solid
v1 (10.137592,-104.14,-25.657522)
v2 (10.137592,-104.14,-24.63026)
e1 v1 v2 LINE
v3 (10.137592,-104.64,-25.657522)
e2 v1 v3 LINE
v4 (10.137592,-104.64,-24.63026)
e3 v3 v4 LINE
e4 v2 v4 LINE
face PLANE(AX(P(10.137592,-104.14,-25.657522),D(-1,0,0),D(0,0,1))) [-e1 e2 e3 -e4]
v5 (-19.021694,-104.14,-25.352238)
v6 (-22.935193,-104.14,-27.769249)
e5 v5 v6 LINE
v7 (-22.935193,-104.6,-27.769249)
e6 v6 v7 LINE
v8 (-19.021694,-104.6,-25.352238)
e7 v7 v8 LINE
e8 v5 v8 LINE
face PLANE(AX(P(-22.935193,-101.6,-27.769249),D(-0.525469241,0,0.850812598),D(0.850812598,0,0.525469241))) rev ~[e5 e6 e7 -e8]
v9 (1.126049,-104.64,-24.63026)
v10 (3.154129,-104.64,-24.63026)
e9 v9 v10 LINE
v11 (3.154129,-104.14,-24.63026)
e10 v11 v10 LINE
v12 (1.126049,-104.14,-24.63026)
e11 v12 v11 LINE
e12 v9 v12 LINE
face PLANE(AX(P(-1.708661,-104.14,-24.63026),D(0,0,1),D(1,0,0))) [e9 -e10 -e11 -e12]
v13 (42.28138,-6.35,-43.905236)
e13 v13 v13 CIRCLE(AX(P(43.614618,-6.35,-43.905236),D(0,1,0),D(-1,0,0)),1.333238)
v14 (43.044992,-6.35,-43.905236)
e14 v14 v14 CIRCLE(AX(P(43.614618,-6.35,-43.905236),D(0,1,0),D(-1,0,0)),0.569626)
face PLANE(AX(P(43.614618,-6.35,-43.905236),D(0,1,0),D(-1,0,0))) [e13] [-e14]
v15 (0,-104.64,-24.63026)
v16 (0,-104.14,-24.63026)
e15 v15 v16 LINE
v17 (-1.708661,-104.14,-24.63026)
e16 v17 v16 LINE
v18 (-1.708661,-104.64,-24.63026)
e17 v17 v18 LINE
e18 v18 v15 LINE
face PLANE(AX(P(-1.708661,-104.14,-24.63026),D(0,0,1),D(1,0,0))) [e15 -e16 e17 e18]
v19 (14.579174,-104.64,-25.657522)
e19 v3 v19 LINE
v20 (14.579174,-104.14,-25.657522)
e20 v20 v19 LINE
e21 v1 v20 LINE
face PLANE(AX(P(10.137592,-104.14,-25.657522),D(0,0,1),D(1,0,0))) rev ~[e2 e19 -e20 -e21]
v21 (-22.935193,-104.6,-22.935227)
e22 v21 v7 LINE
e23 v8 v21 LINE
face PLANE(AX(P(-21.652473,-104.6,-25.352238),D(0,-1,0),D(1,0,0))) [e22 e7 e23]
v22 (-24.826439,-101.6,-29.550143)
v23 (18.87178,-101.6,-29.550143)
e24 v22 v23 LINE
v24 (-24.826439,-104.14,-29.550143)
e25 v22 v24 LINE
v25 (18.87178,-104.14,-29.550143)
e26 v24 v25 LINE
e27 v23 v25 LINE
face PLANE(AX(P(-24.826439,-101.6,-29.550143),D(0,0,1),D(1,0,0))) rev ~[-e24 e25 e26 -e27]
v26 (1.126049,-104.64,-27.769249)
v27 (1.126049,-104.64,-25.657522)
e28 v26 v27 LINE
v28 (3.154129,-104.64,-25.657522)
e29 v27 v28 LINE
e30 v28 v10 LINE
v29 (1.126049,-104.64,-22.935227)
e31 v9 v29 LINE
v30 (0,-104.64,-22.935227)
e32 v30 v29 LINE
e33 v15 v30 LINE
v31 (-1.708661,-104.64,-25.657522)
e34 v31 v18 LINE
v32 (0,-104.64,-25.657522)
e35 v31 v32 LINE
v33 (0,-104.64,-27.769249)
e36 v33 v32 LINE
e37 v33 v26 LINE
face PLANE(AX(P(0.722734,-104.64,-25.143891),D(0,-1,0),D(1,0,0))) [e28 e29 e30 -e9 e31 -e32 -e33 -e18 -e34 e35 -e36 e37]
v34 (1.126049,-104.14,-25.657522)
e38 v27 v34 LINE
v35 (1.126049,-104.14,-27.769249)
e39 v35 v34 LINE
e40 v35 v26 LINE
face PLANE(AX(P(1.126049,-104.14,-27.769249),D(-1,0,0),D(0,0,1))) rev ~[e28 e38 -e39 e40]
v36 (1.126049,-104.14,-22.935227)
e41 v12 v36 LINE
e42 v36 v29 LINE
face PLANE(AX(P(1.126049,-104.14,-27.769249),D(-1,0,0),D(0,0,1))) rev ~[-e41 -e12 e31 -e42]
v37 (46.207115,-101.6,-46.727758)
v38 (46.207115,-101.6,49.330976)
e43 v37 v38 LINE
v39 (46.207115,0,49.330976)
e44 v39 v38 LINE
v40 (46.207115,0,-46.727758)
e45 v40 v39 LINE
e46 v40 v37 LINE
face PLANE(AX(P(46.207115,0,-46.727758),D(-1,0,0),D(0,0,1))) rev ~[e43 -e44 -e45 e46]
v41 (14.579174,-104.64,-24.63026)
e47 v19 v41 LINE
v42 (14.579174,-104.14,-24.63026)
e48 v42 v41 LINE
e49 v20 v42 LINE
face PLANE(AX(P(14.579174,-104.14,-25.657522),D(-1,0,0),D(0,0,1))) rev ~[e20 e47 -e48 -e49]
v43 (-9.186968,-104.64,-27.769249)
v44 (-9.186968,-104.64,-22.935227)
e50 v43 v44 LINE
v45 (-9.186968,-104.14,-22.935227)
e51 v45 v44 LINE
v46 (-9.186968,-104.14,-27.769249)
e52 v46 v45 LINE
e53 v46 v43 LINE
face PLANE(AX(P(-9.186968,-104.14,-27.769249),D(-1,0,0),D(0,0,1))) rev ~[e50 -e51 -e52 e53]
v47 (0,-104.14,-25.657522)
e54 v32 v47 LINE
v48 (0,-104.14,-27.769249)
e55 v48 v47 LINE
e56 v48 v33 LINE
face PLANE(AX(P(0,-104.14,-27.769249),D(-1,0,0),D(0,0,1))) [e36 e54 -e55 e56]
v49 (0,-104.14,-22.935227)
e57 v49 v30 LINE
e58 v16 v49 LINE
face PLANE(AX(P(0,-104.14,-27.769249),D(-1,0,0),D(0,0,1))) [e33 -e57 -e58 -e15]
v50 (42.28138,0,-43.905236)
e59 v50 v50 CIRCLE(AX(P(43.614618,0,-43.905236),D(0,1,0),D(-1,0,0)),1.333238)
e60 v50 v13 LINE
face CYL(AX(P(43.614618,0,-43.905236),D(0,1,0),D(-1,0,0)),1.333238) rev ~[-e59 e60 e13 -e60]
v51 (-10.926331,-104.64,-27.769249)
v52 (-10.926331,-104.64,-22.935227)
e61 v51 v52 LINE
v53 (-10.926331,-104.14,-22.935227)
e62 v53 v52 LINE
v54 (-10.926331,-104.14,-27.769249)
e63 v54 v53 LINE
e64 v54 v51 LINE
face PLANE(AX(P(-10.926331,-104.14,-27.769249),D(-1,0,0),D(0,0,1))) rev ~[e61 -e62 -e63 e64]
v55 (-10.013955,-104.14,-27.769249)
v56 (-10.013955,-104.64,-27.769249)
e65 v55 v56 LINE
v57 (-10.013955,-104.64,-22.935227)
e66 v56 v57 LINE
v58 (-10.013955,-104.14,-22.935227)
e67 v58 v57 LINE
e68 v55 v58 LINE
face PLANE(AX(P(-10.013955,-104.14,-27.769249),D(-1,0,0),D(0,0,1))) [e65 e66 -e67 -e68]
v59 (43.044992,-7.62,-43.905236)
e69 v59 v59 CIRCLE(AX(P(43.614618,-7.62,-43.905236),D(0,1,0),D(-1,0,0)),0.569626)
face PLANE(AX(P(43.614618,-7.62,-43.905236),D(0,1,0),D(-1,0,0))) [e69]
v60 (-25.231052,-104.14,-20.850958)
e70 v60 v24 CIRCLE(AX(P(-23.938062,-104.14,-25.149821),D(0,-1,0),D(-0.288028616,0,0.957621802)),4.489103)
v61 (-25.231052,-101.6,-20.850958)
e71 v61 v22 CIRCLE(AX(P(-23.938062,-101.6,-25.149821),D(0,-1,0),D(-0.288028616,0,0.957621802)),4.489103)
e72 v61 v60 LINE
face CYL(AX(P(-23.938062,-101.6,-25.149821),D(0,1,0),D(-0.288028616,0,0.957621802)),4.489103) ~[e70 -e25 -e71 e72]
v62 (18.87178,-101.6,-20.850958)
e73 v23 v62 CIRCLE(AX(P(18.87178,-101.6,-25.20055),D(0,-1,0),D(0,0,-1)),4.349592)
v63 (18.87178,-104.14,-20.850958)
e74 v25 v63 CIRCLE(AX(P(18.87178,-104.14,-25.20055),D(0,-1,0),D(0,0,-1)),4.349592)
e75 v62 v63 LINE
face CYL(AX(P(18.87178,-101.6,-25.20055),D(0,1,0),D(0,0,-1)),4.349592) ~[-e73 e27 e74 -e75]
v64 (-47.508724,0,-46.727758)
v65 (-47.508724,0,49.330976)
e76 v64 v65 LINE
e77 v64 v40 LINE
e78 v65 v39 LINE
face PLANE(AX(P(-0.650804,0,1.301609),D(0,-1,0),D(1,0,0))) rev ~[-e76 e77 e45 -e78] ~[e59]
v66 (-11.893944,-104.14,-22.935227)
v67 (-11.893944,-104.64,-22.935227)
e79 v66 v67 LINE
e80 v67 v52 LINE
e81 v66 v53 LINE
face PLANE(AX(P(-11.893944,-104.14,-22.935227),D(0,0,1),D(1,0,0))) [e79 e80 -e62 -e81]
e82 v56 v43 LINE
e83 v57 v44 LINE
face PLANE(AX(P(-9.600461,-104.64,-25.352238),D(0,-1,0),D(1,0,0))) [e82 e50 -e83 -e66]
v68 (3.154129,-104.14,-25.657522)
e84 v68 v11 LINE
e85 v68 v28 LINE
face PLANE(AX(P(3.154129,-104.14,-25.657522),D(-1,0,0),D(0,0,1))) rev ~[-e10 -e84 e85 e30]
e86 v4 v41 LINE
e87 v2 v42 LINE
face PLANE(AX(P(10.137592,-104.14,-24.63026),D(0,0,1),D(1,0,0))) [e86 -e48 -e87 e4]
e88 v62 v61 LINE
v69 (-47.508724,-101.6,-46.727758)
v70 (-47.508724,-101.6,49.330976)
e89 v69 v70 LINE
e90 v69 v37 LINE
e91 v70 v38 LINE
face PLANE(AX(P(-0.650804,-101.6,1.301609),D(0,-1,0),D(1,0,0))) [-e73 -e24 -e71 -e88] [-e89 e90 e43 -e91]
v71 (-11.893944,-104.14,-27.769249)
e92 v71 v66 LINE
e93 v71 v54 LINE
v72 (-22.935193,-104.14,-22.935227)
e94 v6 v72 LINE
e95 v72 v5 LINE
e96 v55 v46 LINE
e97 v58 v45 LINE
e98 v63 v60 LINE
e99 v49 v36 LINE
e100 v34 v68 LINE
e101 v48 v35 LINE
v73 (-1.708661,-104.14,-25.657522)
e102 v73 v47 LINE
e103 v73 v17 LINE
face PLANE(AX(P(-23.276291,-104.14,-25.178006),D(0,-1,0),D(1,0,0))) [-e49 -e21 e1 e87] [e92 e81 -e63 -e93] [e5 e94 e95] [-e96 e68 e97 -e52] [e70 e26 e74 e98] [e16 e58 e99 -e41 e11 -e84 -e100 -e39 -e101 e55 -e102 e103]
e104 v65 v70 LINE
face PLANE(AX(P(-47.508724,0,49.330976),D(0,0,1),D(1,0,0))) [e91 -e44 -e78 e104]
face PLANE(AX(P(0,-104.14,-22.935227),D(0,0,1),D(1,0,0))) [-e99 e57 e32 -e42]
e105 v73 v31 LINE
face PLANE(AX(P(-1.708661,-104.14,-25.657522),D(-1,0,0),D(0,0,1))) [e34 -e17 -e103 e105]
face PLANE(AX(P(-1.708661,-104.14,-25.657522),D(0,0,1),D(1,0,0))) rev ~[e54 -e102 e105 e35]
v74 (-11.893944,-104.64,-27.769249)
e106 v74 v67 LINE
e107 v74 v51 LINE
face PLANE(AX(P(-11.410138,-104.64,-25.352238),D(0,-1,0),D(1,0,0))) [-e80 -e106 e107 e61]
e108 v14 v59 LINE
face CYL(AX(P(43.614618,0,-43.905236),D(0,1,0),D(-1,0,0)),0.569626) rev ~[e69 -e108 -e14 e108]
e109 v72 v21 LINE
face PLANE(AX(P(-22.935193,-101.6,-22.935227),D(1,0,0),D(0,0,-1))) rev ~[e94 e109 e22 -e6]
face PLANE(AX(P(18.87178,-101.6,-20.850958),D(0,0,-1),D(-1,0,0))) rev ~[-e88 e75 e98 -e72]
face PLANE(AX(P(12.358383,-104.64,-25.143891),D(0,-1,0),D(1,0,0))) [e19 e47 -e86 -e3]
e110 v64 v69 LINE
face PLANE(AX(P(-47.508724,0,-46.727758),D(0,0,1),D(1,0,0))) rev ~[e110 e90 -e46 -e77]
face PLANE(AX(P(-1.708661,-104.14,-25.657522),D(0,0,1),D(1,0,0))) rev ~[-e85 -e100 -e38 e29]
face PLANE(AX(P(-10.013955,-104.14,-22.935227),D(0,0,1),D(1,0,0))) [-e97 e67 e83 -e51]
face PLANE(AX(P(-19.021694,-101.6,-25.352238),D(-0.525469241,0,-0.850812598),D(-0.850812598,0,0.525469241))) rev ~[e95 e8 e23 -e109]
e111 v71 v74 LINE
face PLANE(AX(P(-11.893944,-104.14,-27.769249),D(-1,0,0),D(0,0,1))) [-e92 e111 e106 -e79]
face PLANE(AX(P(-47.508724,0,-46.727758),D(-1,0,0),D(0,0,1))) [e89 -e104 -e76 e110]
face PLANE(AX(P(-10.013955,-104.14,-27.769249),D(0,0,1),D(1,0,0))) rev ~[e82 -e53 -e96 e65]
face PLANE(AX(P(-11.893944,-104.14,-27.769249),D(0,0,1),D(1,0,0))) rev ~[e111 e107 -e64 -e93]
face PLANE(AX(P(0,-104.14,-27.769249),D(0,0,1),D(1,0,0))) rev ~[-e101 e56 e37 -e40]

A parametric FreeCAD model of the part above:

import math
import FreeCAD as App
import Part
import Sketcher
Q = App.Units.Quantity

doc = App.newDocument("Part")
body = doc.addObject("PartDesign::Body", "Body")

sketch1 = body.newObject("Sketcher::SketchObject", "Sketch")
sketch1.AttachmentSupport = (doc.getObject("XZ_Plane"), [""])
sketch1.MapMode = "FlatFace"
sketch1.addGeometry([
    Part.LineSegment(App.Vector(-47.508724, 49.330976, 0), App.Vector(-47.508724, -46.727758, 0)),
    Part.LineSegment(App.Vector(-47.508724, -46.727758, 0), App.Vector(46.207115, -46.727758, 0)),
    Part.LineSegment(App.Vector(46.207115, -46.727758, 0), App.Vector(46.207115, 49.330976, 0)),
    Part.LineSegment(App.Vector(46.207115, 49.330976, 0), App.Vector(-47.508724, 49.330976, 0)),
], False)
sketch1.addConstraint([
    Sketcher.Constraint("Coincident", 0, 2, 1, 1),
    Sketcher.Constraint("Coincident", 1, 2, 2, 1),
    Sketcher.Constraint("Coincident", 2, 2, 3, 1),
    Sketcher.Constraint("Coincident", 3, 2, 0, 1),
    Sketcher.Constraint("Vertical", 0),
    Sketcher.Constraint("Horizontal", 1),
    Sketcher.Constraint("Vertical", 2),
    Sketcher.Constraint("Horizontal", 3),
    Sketcher.Constraint("DistanceX", 1, 1, 1, 2, Q("3.6896 in")),
    Sketcher.Constraint("DistanceY", 0, 2, 0, 1, Q("96.058734 mm")),
    Sketcher.Constraint("DistanceX", 0, 2, -1, 1, Q("47.508724 mm")),
    Sketcher.Constraint("DistanceY", 0, 2, -1, 1, Q("46.727758 mm")),
])
pad1 = body.newObject("PartDesign::Pad", "Pad")
pad1.Profile = sketch1
pad1.Length = Q("4 in")

sketch2 = body.newObject("Sketcher::SketchObject", "Sketch001")
sketch2.AttachmentSupport = (doc.getObject("XZ_Plane"), [""])
sketch2.MapMode = "FlatFace"
sketch2.AttachmentOffset = App.Placement(App.Vector(0, 0, 4 * 25.4), App.Rotation())
sketch2.addGeometry([
    Part.ArcOfCircle(Part.Circle(App.Vector(-23.938062, -25.149821, 0), App.Vector(0, 0, 1), 4.489103), math.radians(106.739969), math.radians(258.586031)),
    Part.LineSegment(App.Vector(-24.826439, -29.550143, 0), App.Vector(18.87178, -29.550143, 0)),
    Part.ArcOfCircle(Part.Circle(App.Vector(18.87178, -25.20055, 0), App.Vector(0, 0, 1), 4.349592), math.radians(-90), math.radians(90)),
    Part.LineSegment(App.Vector(18.87178, -20.850958, 0), App.Vector(-25.231052, -20.850958, 0)),
], False)
sketch2.addConstraint([
    Sketcher.Constraint("Coincident", 0, 2, 1, 1),
    Sketcher.Constraint("Tangent", 1, 2, 2, 1),
    Sketcher.Constraint("Tangent", 2, 2, 3, 1),
    Sketcher.Constraint("Coincident", 3, 2, 0, 1),
    Sketcher.Constraint("Horizontal", 1),
    Sketcher.Constraint("Horizontal", 3),
    Sketcher.Constraint("Radius", 0, Q("4.489103 mm")),
    Sketcher.Constraint("Radius", 2, Q("4.349592 mm")),
    Sketcher.Constraint("DistanceX", 1, 1, 1, 2, Q("43.69822 mm")),
    Sketcher.Constraint("DistanceX", 3, 2, 3, 1, Q("44.102833 mm")),
    Sketcher.Constraint("DistanceY", 0, 3, -1, 1, Q("25.149821 mm")),
    Sketcher.Constraint("DistanceX", -1, 1, 2, 3, Q("18.87178 mm")),
])
pad2 = body.newObject("PartDesign::Pad", "Pad001")
pad2.Profile = sketch2
pad2.Length = Q("0.1 in")

sketch3 = body.newObject("Sketcher::SketchObject", "Sketch002")
sketch3.AttachmentSupport = (doc.getObject("XZ_Plane"), [""])
sketch3.MapMode = "FlatFace"
sketch3.AttachmentOffset = App.Placement(App.Vector(0, 0, 4 * 25.4), App.Rotation())
sketch3.addGeometry([
    Part.LineSegment(App.Vector(-19.021694, -25.352238, 0), App.Vector(-22.935193, -22.935227, 0)),
    Part.LineSegment(App.Vector(-22.935193, -22.935227, 0), App.Vector(-22.935193, -27.769249, 0)),
    Part.LineSegment(App.Vector(-22.935193, -27.769249, 0), App.Vector(-19.021694, -25.352238, 0)),
], False)
sketch3.addConstraint([
    Sketcher.Constraint("Coincident", 0, 2, 1, 1),
    Sketcher.Constraint("Coincident", 1, 2, 2, 1),
    Sketcher.Constraint("Coincident", 2, 2, 0, 1),
    Sketcher.Constraint("Vertical", 1),
    Sketcher.Constraint("Equal", 0, 2),
    Sketcher.Constraint("DistanceX", 0, 2, 2, 2, Q("3.913499 mm")),
    Sketcher.Constraint("Distance", 0, Q("4.59972 mm")),
    Sketcher.Constraint("DistanceY", 1, 2, -1, 1, Q("27.769249 mm")),
    Sketcher.Constraint("DistanceX", 0, 2, -1, 1, Q("22.935193 mm")),
])
pad3 = body.newObject("PartDesign::Pad", "Pad002")
pad3.Profile = sketch3
pad3.Length = 3

sketch4 = body.newObject("Sketcher::SketchObject", "Sketch003")
sketch4.AttachmentSupport = (doc.getObject("XZ_Plane"), [""])
sketch4.MapMode = "FlatFace"
sketch4.AttachmentOffset = App.Placement(App.Vector(0, 0, 4.1 * 25.4), App.Rotation())
sketch4.addGeometry([
    Part.LineSegment(App.Vector(-11.893944, -22.935227, 0), App.Vector(-11.893944, -27.769249, 0)),
    Part.LineSegment(App.Vector(-11.893944, -27.769249, 0), App.Vector(-10.926331, -27.769249, 0)),
    Part.LineSegment(App.Vector(-10.926331, -27.769249, 0), App.Vector(-10.926331, -22.935227, 0)),
    Part.LineSegment(App.Vector(-10.926331, -22.935227, 0), App.Vector(-11.893944, -22.935227, 0)),
    Part.LineSegment(App.Vector(-10.013955, -22.935227, 0), App.Vector(-10.013955, -27.769249, 0)),
    Part.LineSegment(App.Vector(-10.013955, -27.769249, 0), App.Vector(-9.186968, -27.769249, 0)),
    Part.LineSegment(App.Vector(-9.186968, -27.769249, 0), App.Vector(-9.186968, -22.935227, 0)),
    Part.LineSegment(App.Vector(-9.186968, -22.935227, 0), App.Vector(-10.013955, -22.935227, 0)),
], False)
sketch4.addConstraint([
    Sketcher.Constraint("Coincident", 0, 2, 1, 1),
    Sketcher.Constraint("Coincident", 1, 2, 2, 1),
    Sketcher.Constraint("Coincident", 2, 2, 3, 1),
    Sketcher.Constraint("Coincident", 3, 2, 0, 1),
    Sketcher.Constraint("Coincident", 4, 2, 5, 1),
    Sketcher.Constraint("Coincident", 5, 2, 6, 1),
    Sketcher.Constraint("Coincident", 6, 2, 7, 1),
    Sketcher.Constraint("Coincident", 7, 2, 4, 1),
    Sketcher.Constraint("Vertical", 0),
    Sketcher.Constraint("Horizontal", 1),
    Sketcher.Constraint("Vertical", 2),
    Sketcher.Constraint("Horizontal", 3),
    Sketcher.Constraint("Vertical", 4),
    Sketcher.Constraint("Horizontal", 5),
    Sketcher.Constraint("Vertical", 6),
    Sketcher.Constraint("Horizontal", 7),
    Sketcher.Constraint("Horizontal", 1, 2, 4, 2),
    Sketcher.Constraint("Horizontal", 3, 2, 6, 2),
    Sketcher.Constraint("DistanceX", 1, 1, 1, 2, Q("0.967612 mm")),
    Sketcher.Constraint("DistanceX", 5, 1, 5, 2, Q("0.826987 mm")),
    Sketcher.Constraint("DistanceY", 0, 2, 0, 1, Q("4.834022 mm")),
    Sketcher.Constraint("DistanceY", 0, 2, -1, 1, Q("27.769249 mm")),
    Sketcher.Constraint("DistanceX", 1, 2, -1, 1, Q("10.926331 mm")),
    Sketcher.Constraint("DistanceX", 5, 2, -1, 1, Q("9.186968 mm")),
])
pad4 = body.newObject("PartDesign::Pad", "Pad003")
pad4.Profile = sketch4
pad4.Length = 0.5

sketch5 = body.newObject("Sketcher::SketchObject", "Sketch004")
sketch5.AttachmentSupport = (doc.getObject("XZ_Plane"), [""])
sketch5.MapMode = "FlatFace"
sketch5.AttachmentOffset = App.Placement(App.Vector(0, 0, 4.1 * 25.4), App.Rotation())
sketch5.addGeometry([
    Part.LineSegment(App.Vector(0, -22.935227, 0), App.Vector(0, -27.769249, 0)),
    Part.LineSegment(App.Vector(0, -27.769249, 0), App.Vector(1.126049, -27.769249, 0)),
    Part.LineSegment(App.Vector(1.126049, -27.769249, 0), App.Vector(1.126049, -22.935227, 0)),
    Part.LineSegment(App.Vector(1.126049, -22.935227, 0), App.Vector(0, -22.935227, 0)),
], False)
sketch5.addConstraint([
    Sketcher.Constraint("Coincident", 0, 2, 1, 1),
    Sketcher.Constraint("Coincident", 1, 2, 2, 1),
    Sketcher.Constraint("Coincident", 2, 2, 3, 1),
    Sketcher.Constraint("Coincident", 3, 2, 0, 1),
    Sketcher.Constraint("Vertical", 0),
    Sketcher.Constraint("Horizontal", 1),
    Sketcher.Constraint("Vertical", 2),
    Sketcher.Constraint("Horizontal", 3),
    Sketcher.Constraint("PointOnObject", 0, 2, -2),
    Sketcher.Constraint("DistanceX", 1, 1, 1, 2, Q("1.126049 mm")),
    Sketcher.Constraint("DistanceY", 0, 2, 0, 1, Q("4.834022 mm")),
    Sketcher.Constraint("DistanceY", 0, 2, -1, 1, Q("27.769249 mm")),
])
pad5 = body.newObject("PartDesign::Pad", "Pad004")
pad5.Profile = sketch5
pad5.Length = 0.5

sketch6 = body.newObject("Sketcher::SketchObject", "Sketch005")
sketch6.AttachmentSupport = (doc.getObject("XZ_Plane"), [""])
sketch6.MapMode = "FlatFace"
sketch6.AttachmentOffset = App.Placement(App.Vector(0, 0, 4.1 * 25.4), App.Rotation())
sketch6.addGeometry([
    Part.LineSegment(App.Vector(-1.708661, -24.63026, 0), App.Vector(-1.708661, -25.657522, 0)),
    Part.LineSegment(App.Vector(-1.708661, -25.657522, 0), App.Vector(3.154129, -25.657522, 0)),
    Part.LineSegment(App.Vector(3.154129, -25.657522, 0), App.Vector(3.154129, -24.63026, 0)),
    Part.LineSegment(App.Vector(3.154129, -24.63026, 0), App.Vector(-1.708661, -24.63026, 0)),
], False)
sketch6.addConstraint([
    Sketcher.Constraint("Coincident", 0, 2, 1, 1),
    Sketcher.Constraint("Coincident", 1, 2, 2, 1),
    Sketcher.Constraint("Coincident", 2, 2, 3, 1),
    Sketcher.Constraint("Coincident", 3, 2, 0, 1),
    Sketcher.Constraint("Vertical", 0),
    Sketcher.Constraint("Horizontal", 1),
    Sketcher.Constraint("Vertical", 2),
    Sketcher.Constraint("Horizontal", 3),
    Sketcher.Constraint("DistanceX", 1, 1, 1, 2, Q("4.86279 mm")),
    Sketcher.Constraint("DistanceY", 0, 2, 0, 1, Q("1.027262 mm")),
    Sketcher.Constraint("DistanceX", 0, 2, -1, 1, Q("1.708661 mm")),
    Sketcher.Constraint("DistanceY", 0, 2, -1, 1, Q("25.657522 mm")),
])
pad6 = body.newObject("PartDesign::Pad", "Pad005")
pad6.Profile = sketch6
pad6.Length = 0.5

sketch7 = body.newObject("Sketcher::SketchObject", "Sketch006")
sketch7.AttachmentSupport = (doc.getObject("XZ_Plane"), [""])
sketch7.MapMode = "FlatFace"
sketch7.AttachmentOffset = App.Placement(App.Vector(0, 0, 4.1 * 25.4), App.Rotation())
sketch7.addGeometry([
    Part.LineSegment(App.Vector(10.137592, -24.63026, 0), App.Vector(10.137592, -25.657522, 0)),
    Part.LineSegment(App.Vector(10.137592, -25.657522, 0), App.Vector(14.579174, -25.657522, 0)),
    Part.LineSegment(App.Vector(14.579174, -25.657522, 0), App.Vector(14.579174, -24.63026, 0)),
    Part.LineSegment(App.Vector(14.579174, -24.63026, 0), App.Vector(10.137592, -24.63026, 0)),
], False)
sketch7.addConstraint([
    Sketcher.Constraint("Coincident", 0, 2, 1, 1),
    Sketcher.Constraint("Coincident", 1, 2, 2, 1),
    Sketcher.Constraint("Coincident", 2, 2, 3, 1),
    Sketcher.Constraint("Coincident", 3, 2, 0, 1),
    Sketcher.Constraint("Vertical", 0),
    Sketcher.Constraint("Horizontal", 1),
    Sketcher.Constraint("Vertical", 2),
    Sketcher.Constraint("Horizontal", 3),
    Sketcher.Constraint("DistanceY", 0, 2, 0, 1, Q("1.027262 mm")),
    Sketcher.Constraint("DistanceX", 1, 1, 1, 2, Q("4.441583 mm")),
    Sketcher.Constraint("DistanceX", -1, 1, 0, 2, Q("10.137592 mm")),
    Sketcher.Constraint("DistanceY", 0, 2, -1, 1, Q("25.657522 mm")),
])
pad7 = body.newObject("PartDesign::Pad", "Pad006")
pad7.Profile = sketch7
pad7.Length = 0.5

sketch8 = body.newObject("Sketcher::SketchObject", "Sketch007")
sketch8.AttachmentSupport = (doc.getObject("XZ_Plane"), [""])
sketch8.MapMode = "FlatFace"
sketch8.addGeometry(Part.Circle(App.Vector(43.614618, -43.905236, 0), App.Vector(0, 0, 1), 1.333238), False)
sketch8.addConstraint([
    Sketcher.Constraint("Diameter", 0, Q("2.666477 mm")),
    Sketcher.Constraint("DistanceX", -1, 1, 0, 3, Q("43.614618 mm")),
    Sketcher.Constraint("DistanceY", 0, 3, -1, 1, Q("43.905236 mm")),
])
pocket1 = body.newObject("PartDesign::Pocket", "Pocket")
pocket1.Profile = sketch8
pocket1.Length = Q("0.25 in")
pocket1.Reversed = True

sketch9 = body.newObject("Sketcher::SketchObject", "Sketch008")
sketch9.AttachmentSupport = (doc.getObject("XZ_Plane"), [""])
sketch9.MapMode = "FlatFace"
sketch9.addGeometry(Part.Circle(App.Vector(43.614618, -43.905236, 0), App.Vector(0, 0, 1), 0.569626), False)
sketch9.addConstraint([
    Sketcher.Constraint("Diameter", 0, Q("1.139253 mm")),
    Sketcher.Constraint("DistanceX", -1, 1, 0, 3, Q("43.614618 mm")),
    Sketcher.Constraint("DistanceY", 0, 3, -1, 1, Q("43.905236 mm")),
])
pocket2 = body.newObject("PartDesign::Pocket", "Pocket001")
pocket2.Profile = sketch9
pocket2.Length = Q("0.3 in")
pocket2.Reversed = True

doc.recompute()
